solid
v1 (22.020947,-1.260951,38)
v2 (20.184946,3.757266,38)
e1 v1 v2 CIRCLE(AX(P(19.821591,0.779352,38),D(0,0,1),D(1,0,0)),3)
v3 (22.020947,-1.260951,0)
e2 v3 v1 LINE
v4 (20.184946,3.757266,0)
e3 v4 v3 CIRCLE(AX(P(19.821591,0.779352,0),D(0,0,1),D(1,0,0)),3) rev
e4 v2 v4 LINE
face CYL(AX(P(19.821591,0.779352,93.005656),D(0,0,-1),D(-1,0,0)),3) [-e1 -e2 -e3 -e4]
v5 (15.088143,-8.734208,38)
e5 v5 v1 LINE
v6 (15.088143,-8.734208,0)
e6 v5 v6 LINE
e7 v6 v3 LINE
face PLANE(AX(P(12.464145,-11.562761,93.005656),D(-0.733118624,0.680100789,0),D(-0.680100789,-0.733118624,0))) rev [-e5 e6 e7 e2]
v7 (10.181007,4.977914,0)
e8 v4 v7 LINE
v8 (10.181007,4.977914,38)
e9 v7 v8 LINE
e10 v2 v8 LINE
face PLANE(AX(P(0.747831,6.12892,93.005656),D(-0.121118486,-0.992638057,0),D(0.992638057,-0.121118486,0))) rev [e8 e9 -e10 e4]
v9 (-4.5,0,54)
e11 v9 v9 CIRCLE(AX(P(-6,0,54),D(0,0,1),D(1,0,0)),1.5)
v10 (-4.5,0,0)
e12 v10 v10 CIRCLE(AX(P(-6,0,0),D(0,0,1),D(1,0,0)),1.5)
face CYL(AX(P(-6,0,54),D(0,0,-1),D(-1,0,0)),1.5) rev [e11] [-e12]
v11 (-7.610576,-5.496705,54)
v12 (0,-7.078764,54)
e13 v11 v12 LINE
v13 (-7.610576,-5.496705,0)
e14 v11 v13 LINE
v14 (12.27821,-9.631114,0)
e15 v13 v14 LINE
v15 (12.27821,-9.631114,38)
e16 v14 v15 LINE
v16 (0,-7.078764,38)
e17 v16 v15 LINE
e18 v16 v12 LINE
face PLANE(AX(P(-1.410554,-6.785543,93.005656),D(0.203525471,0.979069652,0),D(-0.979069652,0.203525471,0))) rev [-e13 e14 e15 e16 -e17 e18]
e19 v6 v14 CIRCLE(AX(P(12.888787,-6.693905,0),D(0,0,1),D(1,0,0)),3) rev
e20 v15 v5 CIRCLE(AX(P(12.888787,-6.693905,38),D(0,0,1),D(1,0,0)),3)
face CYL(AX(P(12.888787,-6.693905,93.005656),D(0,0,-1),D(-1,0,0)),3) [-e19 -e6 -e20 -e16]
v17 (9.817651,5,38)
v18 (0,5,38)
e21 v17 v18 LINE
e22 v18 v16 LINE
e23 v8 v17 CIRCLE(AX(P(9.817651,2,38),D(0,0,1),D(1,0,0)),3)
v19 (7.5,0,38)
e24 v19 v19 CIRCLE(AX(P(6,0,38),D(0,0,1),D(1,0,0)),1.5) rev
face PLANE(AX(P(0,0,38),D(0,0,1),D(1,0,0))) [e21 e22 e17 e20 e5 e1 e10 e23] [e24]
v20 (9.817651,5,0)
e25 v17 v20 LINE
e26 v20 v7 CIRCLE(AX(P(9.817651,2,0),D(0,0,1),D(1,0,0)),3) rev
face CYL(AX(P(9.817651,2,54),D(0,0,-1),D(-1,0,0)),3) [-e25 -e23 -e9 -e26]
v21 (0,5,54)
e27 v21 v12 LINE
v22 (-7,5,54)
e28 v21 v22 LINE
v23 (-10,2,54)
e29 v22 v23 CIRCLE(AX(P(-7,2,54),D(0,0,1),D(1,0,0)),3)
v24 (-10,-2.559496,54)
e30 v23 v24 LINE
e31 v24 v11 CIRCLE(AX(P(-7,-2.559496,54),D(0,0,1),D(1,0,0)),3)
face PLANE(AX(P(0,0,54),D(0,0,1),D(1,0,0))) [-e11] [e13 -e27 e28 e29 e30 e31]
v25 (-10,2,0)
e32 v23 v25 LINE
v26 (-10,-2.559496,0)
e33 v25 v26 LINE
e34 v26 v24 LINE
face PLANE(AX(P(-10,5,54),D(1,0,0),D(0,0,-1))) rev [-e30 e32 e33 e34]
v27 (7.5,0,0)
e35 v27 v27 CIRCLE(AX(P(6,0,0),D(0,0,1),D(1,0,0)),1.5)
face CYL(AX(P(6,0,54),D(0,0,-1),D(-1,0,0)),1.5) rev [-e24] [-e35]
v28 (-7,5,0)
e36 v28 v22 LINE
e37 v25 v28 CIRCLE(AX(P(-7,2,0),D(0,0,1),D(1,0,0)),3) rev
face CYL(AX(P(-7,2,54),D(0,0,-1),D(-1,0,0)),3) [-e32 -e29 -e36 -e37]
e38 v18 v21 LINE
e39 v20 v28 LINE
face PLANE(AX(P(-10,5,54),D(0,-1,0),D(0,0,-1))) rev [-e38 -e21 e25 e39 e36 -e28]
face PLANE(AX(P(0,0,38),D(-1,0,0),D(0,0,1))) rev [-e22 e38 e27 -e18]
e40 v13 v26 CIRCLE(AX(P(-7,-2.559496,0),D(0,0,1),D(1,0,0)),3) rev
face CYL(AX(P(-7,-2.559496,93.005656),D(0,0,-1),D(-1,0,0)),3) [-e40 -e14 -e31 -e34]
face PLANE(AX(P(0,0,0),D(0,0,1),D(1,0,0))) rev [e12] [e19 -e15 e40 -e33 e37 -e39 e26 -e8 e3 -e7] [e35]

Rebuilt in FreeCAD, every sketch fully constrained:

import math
import FreeCAD as App
import Part
import Sketcher


def edges_at(feature, points):
    """Names of the edges that pass closest to the given points."""
    edges = feature.Shape.Edges
    near = lambda p: min(range(len(edges)), key=lambda i: edges[i].distToShape(Part.Vertex(*p))[0])
    return sorted({f"Edge{near(p) + 1}" for p in points})

doc = App.newDocument("Part")
body = doc.addObject("PartDesign::Body", "Body")

# Sketch on XY plane
sketch1 = body.newObject("Sketcher::SketchObject", "Sketch")
sketch1.AttachmentSupport = (doc.getObject("XY_Plane"), [""])
sketch1.MapMode = "FlatFace"
sketch1.addGeometry(Part.LineSegment(App.Vector(-10, 5, 0), App.Vector(-10, -5, 0)), False)
sketch1.addGeometry(Part.LineSegment(App.Vector(-10, -5, 0), App.Vector(10, -5, 0)), False)
sketch1.addGeometry(Part.LineSegment(App.Vector(10, -5, 0), App.Vector(10, 5, 0)), False)
sketch1.addGeometry(Part.LineSegment(App.Vector(10, 5, 0), App.Vector(-10, 5, 0)), False)
sketch1.addGeometry(Part.Circle(App.Vector(-6, 0, 0), App.Vector(0, 0, 1), 1.5), False)
sketch1.addGeometry(Part.Circle(App.Vector(6, 0, 0), App.Vector(0, 0, 1), 1.5), False)
sketch1.addConstraint(Sketcher.Constraint("Coincident", 0, 2, 1, 1))
sketch1.addConstraint(Sketcher.Constraint("Coincident", 1, 2, 2, 1))
sketch1.addConstraint(Sketcher.Constraint("Coincident", 2, 2, 3, 1))
sketch1.addConstraint(Sketcher.Constraint("Coincident", 3, 2, 0, 1))
sketch1.addConstraint(Sketcher.Constraint("Vertical", 0))
sketch1.addConstraint(Sketcher.Constraint("Horizontal", 1))
sketch1.addConstraint(Sketcher.Constraint("Vertical", 2))
sketch1.addConstraint(Sketcher.Constraint("Horizontal", 3))
sketch1.addConstraint(Sketcher.Constraint("Equal", 4, 5))
sketch1.addConstraint(Sketcher.Constraint("Symmetric", 4, 3, 5, 3, -1, 1))
sketch1.addConstraint(Sketcher.Constraint("Symmetric", 0, 2, 2, 2, -1, 1))
sketch1.addConstraint(Sketcher.Constraint("PointOnObject", 4, 3, -1))
sketch1.addConstraint(Sketcher.Constraint("Diameter", 4, 3.0))
sketch1.addConstraint(Sketcher.Constraint("DistanceX", 1, 1, 1, 2, 20.0))
sketch1.addConstraint(Sketcher.Constraint("DistanceY", 0, 2, 0, 1, 10.0))
sketch1.addConstraint(Sketcher.Constraint("DistanceX", 4, 3, -1, 1, 6.0))
pad1 = body.newObject("PartDesign::Pad", "Pad")
pad1.Profile = sketch1
pad1.Length = 54

# Sketch on XY plane
sketch2 = body.newObject("Sketcher::SketchObject", "Sketch001")
sketch2.AttachmentSupport = (doc.getObject("XY_Plane"), [""])
sketch2.MapMode = "FlatFace"
sketch2.addGeometry(Part.LineSegment(App.Vector(10, 5, 0), App.Vector(26.016199, 3.045755, 0)), False)
sketch2.addGeometry(Part.LineSegment(App.Vector(26.016199, 3.045755, 0), App.Vector(13.93634, -9.9758, 0)), False)
sketch2.addGeometry(Part.LineSegment(App.Vector(13.93634, -9.9758, 0), App.Vector(-10, -5, 0)), False)
sketch2.addGeometry(Part.LineSegment(App.Vector(-10, -5, 0), App.Vector(10, -5, 0)), False)
sketch2.addGeometry(Part.LineSegment(App.Vector(10, -5, 0), App.Vector(10, 5, 0)), False)
sketch2.addConstraint(Sketcher.Constraint("Coincident", 0, 2, 1, 1))
sketch2.addConstraint(Sketcher.Constraint("Coincident", 1, 2, 2, 1))
sketch2.addConstraint(Sketcher.Constraint("Coincident", 2, 2, 3, 1))
sketch2.addConstraint(Sketcher.Constraint("Coincident", 3, 2, 4, 1))
sketch2.addConstraint(Sketcher.Constraint("Coincident", 4, 2, 0, 1))
sketch2.addConstraint(Sketcher.Constraint("Horizontal", 3))
sketch2.addConstraint(Sketcher.Constraint("Vertical", 4))
sketch2.addConstraint(Sketcher.Constraint("Symmetric", 2, 2, 4, 2, -1, 1))
sketch2.addConstraint(Sketcher.Constraint("DistanceX", 3, 1, 3, 2, 20.0))
sketch2.addConstraint(Sketcher.Constraint("DistanceY", 4, 1, 4, 2, 10.0))
sketch2.addConstraint(Sketcher.Constraint("DistanceX", -1, 1, 0, 2, 26.016199))
sketch2.addConstraint(Sketcher.Constraint("DistanceY", 1, 2, -1, 1, 9.9758))
sketch2.addConstraint(Sketcher.Constraint("DistanceX", -1, 1, 1, 2, 13.93634))
sketch2.addConstraint(Sketcher.Constraint("Distance", 0, 16.134984))
pad2 = body.newObject("PartDesign::Pad", "Pad001")
pad2.Profile = sketch2
pad2.Length = 54
doc.recompute()

fillet = body.newObject("PartDesign::Fillet", "Fillet")
fillet.Base = (pad2, edges_at(pad2, [
    (26.016, 3.046, 27),
    (13.936, -9.976, 27),
    (-10, -5, 27),
    (-10, 5, 27),
    (10, 5, 27),
]))
fillet.Radius = 3

# Sketch on XY plane
sketch3 = body.newObject("Sketcher::SketchObject", "Sketch002")
sketch3.AttachmentSupport = (doc.getObject("XY_Plane"), [""])
sketch3.MapMode = "FlatFace"
sketch3.AttachmentOffset = App.Placement(App.Vector(0, 0, 54), App.Rotation())
sketch3.addGeometry(Part.LineSegment(App.Vector(9.817651, 5, 0), App.Vector(0, 5, 0)), False)
sketch3.addGeometry(Part.LineSegment(App.Vector(0, 5, 0), App.Vector(0, -7.078764, 0)), False)
sketch3.addGeometry(Part.LineSegment(App.Vector(0, -7.078764, 0), App.Vector(12.27821, -9.631114, 0)), False)
sketch3.addGeometry(Part.ArcOfCircle(Part.Circle(App.Vector(12.888787, -6.693905, 0), App.Vector(0, 0, 1), 3), math.radians(-101.743195), math.radians(-42.85152)), False)
sketch3.addGeometry(Part.LineSegment(App.Vector(15.088143, -8.734208, 0), App.Vector(22.020947, -1.260951, 0)), False)
sketch3.addGeometry(Part.ArcOfCircle(Part.Circle(App.Vector(19.821591, 0.779352, 0), App.Vector(0, 0, 1), 3), math.radians(-42.85152), math.radians(83.043342)), False)
sketch3.addGeometry(Part.LineSegment(App.Vector(20.184946, 3.757266, 0), App.Vector(10.181007, 4.977914, 0)), False)
sketch3.addGeometry(Part.ArcOfCircle(Part.Circle(App.Vector(9.817651, 2, 0), App.Vector(0, 0, 1), 3), math.radians(83.043342), math.radians(90)), False)
sketch3.addGeometry(Part.Circle(App.Vector(6, 0, 0), App.Vector(0, 0, 1), 1.5), False)
sketch3.addConstraint(Sketcher.Constraint("Coincident", 0, 2, 1, 1))
sketch3.addConstraint(Sketcher.Constraint("Coincident", 1, 2, 2, 1))
sketch3.addConstraint(Sketcher.Constraint("Tangent", 2, 2, 3, 1))
sketch3.addConstraint(Sketcher.Constraint("Tangent", 3, 2, 4, 1))
sketch3.addConstraint(Sketcher.Constraint("Tangent", 4, 2, 5, 1))
sketch3.addConstraint(Sketcher.Constraint("Tangent", 5, 2, 6, 1))
sketch3.addConstraint(Sketcher.Constraint("Tangent", 6, 2, 7, 1))
sketch3.addConstraint(Sketcher.Constraint("Tangent", 7, 2, 0, 1))
sketch3.addConstraint(Sketcher.Constraint("Horizontal", 0))
sketch3.addConstraint(Sketcher.Constraint("Vertical", 1))
sketch3.addConstraint(Sketcher.Constraint("Equal", 3, 5))
sketch3.addConstraint(Sketcher.Constraint("Equal", 5, 7))
sketch3.addConstraint(Sketcher.Constraint("PointOnObject", 8, 3, -1))
sketch3.addConstraint(Sketcher.Constraint("PointOnObject", 0, 2, -2))
sketch3.addConstraint(Sketcher.Constraint("Diameter", 8, 3.0))
sketch3.addConstraint(Sketcher.Constraint("Radius", 3, 3.0))
sketch3.addConstraint(Sketcher.Constraint("DistanceY", -1, 1, 7, 3, 2.0))
sketch3.addConstraint(Sketcher.Constraint("DistanceX", -1, 1, 8, 3, 6.0))
sketch3.addConstraint(Sketcher.Constraint("DistanceX", 5, 2, 4, 2, 1.836))
sketch3.addConstraint(Sketcher.Constraint("DistanceX", 0, 2, 0, 1, 9.817651))
sketch3.addConstraint(Sketcher.Constraint("Distance", 2, 12.540691))
sketch3.addConstraint(Sketcher.Constraint("Distance", 4, 10.193789))
sketch3.addConstraint(Sketcher.Constraint("DistanceY", 1, 2, 1, 1, 12.078764))
sketch3.addConstraint(Sketcher.Constraint("DistanceX", -1, 1, 5, 3, 19.821591))
pocket1 = body.newObject("PartDesign::Pocket", "Pocket")
pocket1.Profile = sketch3
pocket1.Length = 16

doc.recompute()
